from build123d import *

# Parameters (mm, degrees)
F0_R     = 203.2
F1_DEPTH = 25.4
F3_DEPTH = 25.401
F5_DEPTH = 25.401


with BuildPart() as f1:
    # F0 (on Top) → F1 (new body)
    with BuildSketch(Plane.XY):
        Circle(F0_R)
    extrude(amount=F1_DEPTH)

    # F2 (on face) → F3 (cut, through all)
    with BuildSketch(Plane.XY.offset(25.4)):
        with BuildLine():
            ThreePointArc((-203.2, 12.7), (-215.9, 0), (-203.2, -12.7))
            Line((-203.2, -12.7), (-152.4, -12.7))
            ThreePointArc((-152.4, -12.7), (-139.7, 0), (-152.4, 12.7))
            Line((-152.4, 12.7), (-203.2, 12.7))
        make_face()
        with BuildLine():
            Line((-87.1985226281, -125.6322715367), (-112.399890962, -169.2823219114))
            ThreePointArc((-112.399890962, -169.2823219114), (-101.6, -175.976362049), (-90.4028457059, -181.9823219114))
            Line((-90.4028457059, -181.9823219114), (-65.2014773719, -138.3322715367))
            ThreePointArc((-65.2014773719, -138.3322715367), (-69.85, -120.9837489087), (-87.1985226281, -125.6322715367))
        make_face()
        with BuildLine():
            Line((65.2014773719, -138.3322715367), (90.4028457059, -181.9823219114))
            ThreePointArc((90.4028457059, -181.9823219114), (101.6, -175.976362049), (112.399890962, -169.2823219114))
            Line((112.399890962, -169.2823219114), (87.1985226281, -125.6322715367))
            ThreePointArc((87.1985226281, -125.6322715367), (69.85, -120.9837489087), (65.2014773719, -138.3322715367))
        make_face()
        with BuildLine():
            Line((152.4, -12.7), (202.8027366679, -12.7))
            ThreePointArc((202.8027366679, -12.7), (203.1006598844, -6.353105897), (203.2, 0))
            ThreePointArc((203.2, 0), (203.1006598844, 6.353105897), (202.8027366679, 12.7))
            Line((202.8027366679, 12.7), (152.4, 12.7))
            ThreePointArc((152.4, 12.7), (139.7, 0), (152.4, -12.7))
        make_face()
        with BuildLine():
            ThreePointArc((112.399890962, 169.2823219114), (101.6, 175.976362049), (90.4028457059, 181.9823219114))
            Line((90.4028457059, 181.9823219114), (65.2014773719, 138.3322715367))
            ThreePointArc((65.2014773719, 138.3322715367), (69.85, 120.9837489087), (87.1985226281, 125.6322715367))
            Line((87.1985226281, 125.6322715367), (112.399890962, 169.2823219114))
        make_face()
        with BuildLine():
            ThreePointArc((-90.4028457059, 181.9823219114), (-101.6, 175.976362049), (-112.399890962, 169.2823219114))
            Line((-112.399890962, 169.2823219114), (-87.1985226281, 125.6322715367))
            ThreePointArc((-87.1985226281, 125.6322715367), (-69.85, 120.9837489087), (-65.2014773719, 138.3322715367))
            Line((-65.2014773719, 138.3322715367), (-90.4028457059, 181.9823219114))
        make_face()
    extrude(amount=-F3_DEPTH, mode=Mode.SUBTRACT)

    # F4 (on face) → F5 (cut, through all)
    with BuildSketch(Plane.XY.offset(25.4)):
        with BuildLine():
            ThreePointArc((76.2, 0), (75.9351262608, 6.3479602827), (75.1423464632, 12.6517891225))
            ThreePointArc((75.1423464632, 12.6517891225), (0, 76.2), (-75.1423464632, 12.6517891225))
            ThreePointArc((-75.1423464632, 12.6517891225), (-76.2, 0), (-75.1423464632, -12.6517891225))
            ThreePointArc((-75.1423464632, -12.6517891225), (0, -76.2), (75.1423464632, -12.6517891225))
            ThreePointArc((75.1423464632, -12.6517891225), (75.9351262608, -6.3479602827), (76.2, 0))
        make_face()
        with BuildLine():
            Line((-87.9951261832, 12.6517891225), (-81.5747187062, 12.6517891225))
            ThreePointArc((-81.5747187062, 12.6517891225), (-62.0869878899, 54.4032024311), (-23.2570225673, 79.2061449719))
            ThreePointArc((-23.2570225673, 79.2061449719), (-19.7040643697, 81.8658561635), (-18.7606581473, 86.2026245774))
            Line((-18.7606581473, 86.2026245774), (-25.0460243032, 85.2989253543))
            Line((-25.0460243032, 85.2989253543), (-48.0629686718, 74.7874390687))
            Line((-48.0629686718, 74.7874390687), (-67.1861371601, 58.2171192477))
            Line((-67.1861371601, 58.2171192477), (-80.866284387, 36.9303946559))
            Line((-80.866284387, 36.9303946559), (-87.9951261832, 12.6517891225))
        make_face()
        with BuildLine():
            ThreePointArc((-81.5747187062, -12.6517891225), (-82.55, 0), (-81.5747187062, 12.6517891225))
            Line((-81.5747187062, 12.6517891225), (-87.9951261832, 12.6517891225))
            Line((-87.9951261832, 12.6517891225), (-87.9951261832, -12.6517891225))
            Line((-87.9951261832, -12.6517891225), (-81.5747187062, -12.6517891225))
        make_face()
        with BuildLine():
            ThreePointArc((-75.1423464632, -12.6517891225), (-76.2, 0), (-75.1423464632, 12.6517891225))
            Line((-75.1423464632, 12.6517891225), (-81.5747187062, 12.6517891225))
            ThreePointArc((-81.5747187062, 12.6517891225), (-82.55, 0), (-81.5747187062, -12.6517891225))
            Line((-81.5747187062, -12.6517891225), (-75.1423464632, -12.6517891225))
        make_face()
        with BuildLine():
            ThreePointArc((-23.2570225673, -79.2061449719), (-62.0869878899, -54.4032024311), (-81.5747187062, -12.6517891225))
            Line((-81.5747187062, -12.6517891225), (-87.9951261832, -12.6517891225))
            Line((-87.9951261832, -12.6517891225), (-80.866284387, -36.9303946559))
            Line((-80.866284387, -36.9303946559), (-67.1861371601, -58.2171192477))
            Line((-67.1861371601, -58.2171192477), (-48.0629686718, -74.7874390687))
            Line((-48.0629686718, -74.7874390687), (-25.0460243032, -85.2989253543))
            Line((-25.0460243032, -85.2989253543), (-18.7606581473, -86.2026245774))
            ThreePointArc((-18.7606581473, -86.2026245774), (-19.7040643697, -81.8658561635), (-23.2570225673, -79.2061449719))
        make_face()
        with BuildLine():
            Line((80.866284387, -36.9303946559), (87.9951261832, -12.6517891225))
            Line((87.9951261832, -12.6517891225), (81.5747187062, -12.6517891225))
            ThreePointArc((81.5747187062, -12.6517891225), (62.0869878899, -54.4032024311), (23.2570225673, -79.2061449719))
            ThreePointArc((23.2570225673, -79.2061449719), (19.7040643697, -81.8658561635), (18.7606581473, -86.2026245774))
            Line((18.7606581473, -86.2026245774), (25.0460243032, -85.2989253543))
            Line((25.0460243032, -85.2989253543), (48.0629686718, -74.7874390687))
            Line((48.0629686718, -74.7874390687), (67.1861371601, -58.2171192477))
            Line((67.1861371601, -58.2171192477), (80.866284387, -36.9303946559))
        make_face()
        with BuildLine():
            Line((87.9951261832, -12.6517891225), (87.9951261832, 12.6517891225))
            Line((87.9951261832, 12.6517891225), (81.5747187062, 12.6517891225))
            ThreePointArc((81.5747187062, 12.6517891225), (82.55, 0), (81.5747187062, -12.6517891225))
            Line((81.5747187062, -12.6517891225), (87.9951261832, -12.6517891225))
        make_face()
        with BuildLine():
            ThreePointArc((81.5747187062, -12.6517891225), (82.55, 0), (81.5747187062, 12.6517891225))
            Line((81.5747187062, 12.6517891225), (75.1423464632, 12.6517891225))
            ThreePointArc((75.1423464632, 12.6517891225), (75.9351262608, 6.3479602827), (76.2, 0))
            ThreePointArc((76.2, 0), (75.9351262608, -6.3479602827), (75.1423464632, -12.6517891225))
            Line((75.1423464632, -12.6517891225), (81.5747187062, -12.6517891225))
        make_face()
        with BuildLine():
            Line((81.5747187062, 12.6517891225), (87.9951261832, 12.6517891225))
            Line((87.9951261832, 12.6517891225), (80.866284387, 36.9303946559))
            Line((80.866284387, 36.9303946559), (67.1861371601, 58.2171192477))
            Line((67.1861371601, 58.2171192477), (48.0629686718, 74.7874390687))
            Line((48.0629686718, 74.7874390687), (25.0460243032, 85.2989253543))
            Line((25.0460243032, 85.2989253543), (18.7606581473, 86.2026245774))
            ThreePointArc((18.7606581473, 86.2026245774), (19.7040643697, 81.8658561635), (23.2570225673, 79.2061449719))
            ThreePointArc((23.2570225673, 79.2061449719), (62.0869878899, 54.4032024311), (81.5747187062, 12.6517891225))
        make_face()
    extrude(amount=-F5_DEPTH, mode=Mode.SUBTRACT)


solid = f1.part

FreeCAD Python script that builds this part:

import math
import FreeCAD as App
import Part
import Sketcher
Q = App.Units.Quantity

doc = App.newDocument("Part")
body = doc.addObject("PartDesign::Body", "Body")

# Sketch on XY plane
sketch1 = body.newObject("Sketcher::SketchObject", "Sketch")
sketch1.AttachmentSupport = (doc.getObject("XY_Plane"), [""])
sketch1.MapMode = "FlatFace"
sketch1.addGeometry(Part.Circle(App.Vector(0, 0, 0), App.Vector(0, 0, 1), 203), False)
sketch1.addConstraint([
    Sketcher.Constraint("Coincident", 0, 3, -1, 1),
    Sketcher.Constraint("Diameter", 0, Q("16 in")),
])
pad1 = body.newObject("PartDesign::Pad", "Pad")
pad1.Profile = sketch1
pad1.Length = Q("1 in")

# Sketch on XY plane
sketch2 = body.newObject("Sketcher::SketchObject", "Sketch001")
sketch2.AttachmentSupport = (doc.getObject("XY_Plane"), [""])
sketch2.MapMode = "FlatFace"
sketch2.AttachmentOffset = App.Placement(App.Vector(0, 0, 1 * 25.4), App.Rotation())
sketch2.addGeometry([
    Part.ArcOfCircle(Part.Circle(App.Vector(-203, 0, 0), App.Vector(0, 0, 1), 13), math.radians(90), math.radians(270)),  # 0
    Part.LineSegment(App.Vector(-203, -13, 0), App.Vector(-152, -13, 0)),  # 1
    Part.ArcOfCircle(Part.Circle(App.Vector(-152, 0, 0), App.Vector(0, 0, 1), 13), math.radians(-90), math.radians(90)),  # 2
    Part.LineSegment(App.Vector(-152, 13, 0), App.Vector(-203, 13, 0)),  # 3
    Part.LineSegment(App.Vector(-87, -126, 0), App.Vector(-112, -169, 0)),  # 4
    Part.ArcOfCircle(Part.Circle(App.Vector(0, 0, 0), App.Vector(0, 0, 1), 203), math.radians(-123.58), math.radians(-116.42)),  # 5
    Part.LineSegment(App.Vector(-90, -182, 0), App.Vector(-65, -138, 0)),  # 6
    Part.ArcOfCircle(Part.Circle(App.Vector(-76, -132, 0), App.Vector(0, 0, 1), 13), math.radians(-30), math.radians(150)),  # 7
    Part.LineSegment(App.Vector(65, -138, 0), App.Vector(90, -182, 0)),  # 8
    Part.ArcOfCircle(Part.Circle(App.Vector(0, 0, 0), App.Vector(0, 0, 1), 203), math.radians(-63.58), math.radians(-56.42)),  # 9
    Part.LineSegment(App.Vector(112, -169, 0), App.Vector(87, -126, 0)),  # 10
    Part.ArcOfCircle(Part.Circle(App.Vector(76, -132, 0), App.Vector(0, 0, 1), 13), math.radians(30), math.radians(210)),  # 11
    Part.LineSegment(App.Vector(152, -13, 0), App.Vector(203, -13, 0)),  # 12
    Part.ArcOfCircle(Part.Circle(App.Vector(0, 0, 0), App.Vector(0, 0, 1), 203), math.radians(-3.58), math.radians(0)),  # 13
    Part.ArcOfCircle(Part.Circle(App.Vector(0, 0, 0), App.Vector(0, 0, 1), 203), math.radians(0), math.radians(3.58)),  # 14
    Part.LineSegment(App.Vector(203, 13, 0), App.Vector(152, 13, 0)),  # 15
    Part.ArcOfCircle(Part.Circle(App.Vector(152, 0, 0), App.Vector(0, 0, 1), 13), math.radians(90), math.radians(270)),  # 16
    Part.ArcOfCircle(Part.Circle(App.Vector(0, 0, 0), App.Vector(0, 0, 1), 203), math.radians(56.42), math.radians(63.58)),  # 17
    Part.LineSegment(App.Vector(90, 182, 0), App.Vector(65, 138, 0)),  # 18
    Part.ArcOfCircle(Part.Circle(App.Vector(76, 132, 0), App.Vector(0, 0, 1), 13), math.radians(150), math.radians(330)),  # 19
    Part.LineSegment(App.Vector(87, 126, 0), App.Vector(112, 169, 0)),  # 20
    Part.ArcOfCircle(Part.Circle(App.Vector(0, 0, 0), App.Vector(0, 0, 1), 203), math.radians(116.42), math.radians(123.58)),  # 21
    Part.LineSegment(App.Vector(-112, 169, 0), App.Vector(-87, 126, 0)),  # 22
    Part.ArcOfCircle(Part.Circle(App.Vector(-76, 132, 0), App.Vector(0, 0, 1), 13), math.radians(-150), math.radians(30)),  # 23
    Part.LineSegment(App.Vector(-65, 138, 0), App.Vector(-90, 182, 0)),  # 24
], False)
sketch2.addConstraint([
    Sketcher.Constraint("Tangent", 0, 2, 1, 1),
    Sketcher.Constraint("Tangent", 1, 2, 2, 1),
    Sketcher.Constraint("Tangent", 2, 2, 3, 1),
    Sketcher.Constraint("Tangent", 3, 2, 0, 1),
    Sketcher.Constraint("Coincident", 4, 2, 5, 1),
    Sketcher.Constraint("Coincident", 5, 2, 6, 1),
    Sketcher.Constraint("Tangent", 6, 2, 7, 1),
    Sketcher.Constraint("Tangent", 7, 2, 4, 1),
    Sketcher.Constraint("Coincident", 8, 2, 9, 1),
    Sketcher.Constraint("Coincident", 9, 2, 10, 1),
    Sketcher.Constraint("Tangent", 10, 2, 11, 1),
    Sketcher.Constraint("Tangent", 11, 2, 8, 1),
    Sketcher.Constraint("Coincident", 12, 2, 13, 1),
    Sketcher.Constraint("Tangent", 13, 2, 14, 1),
    Sketcher.Constraint("Coincident", 14, 2, 15, 1),
    Sketcher.Constraint("Tangent", 15, 2, 16, 1),
    Sketcher.Constraint("Tangent", 16, 2, 12, 1),
    Sketcher.Constraint("Coincident", 17, 2, 18, 1),
    Sketcher.Constraint("Tangent", 18, 2, 19, 1),
    Sketcher.Constraint("Tangent", 19, 2, 20, 1),
    Sketcher.Constraint("Coincident", 20, 2, 17, 1),
    Sketcher.Constraint("Coincident", 21, 2, 22, 1),
    Sketcher.Constraint("Tangent", 22, 2, 23, 1),
    Sketcher.Constraint("Tangent", 23, 2, 24, 1),
    Sketcher.Constraint("Coincident", 24, 2, 21, 1),
    Sketcher.Constraint("Horizontal", 1),
    Sketcher.Constraint("Horizontal", 3),
    Sketcher.Constraint("Horizontal", 12),
    Sketcher.Constraint("Horizontal", 15),
    Sketcher.Constraint("Coincident", 5, 3, -1, 1),
    Sketcher.Constraint("Coincident", 9, 3, -1, 1),
    Sketcher.Constraint("Coincident", 13, 3, -1, 1),
    Sketcher.Constraint("Coincident", 17, 3, -1, 1),
    Sketcher.Constraint("Coincident", 21, 3, -1, 1),
    Sketcher.Constraint("Equal", 2, 7),
    Sketcher.Constraint("Equal", 5, 9),
    Sketcher.Constraint("Equal", 7, 11),
    Sketcher.Constraint("Equal", 9, 13),
    Sketcher.Constraint("Equal", 13, 14),
    Sketcher.Constraint("Equal", 11, 16),
    Sketcher.Constraint("Equal", 14, 17),
    Sketcher.Constraint("Equal", 16, 19),
    Sketcher.Constraint("Equal", 17, 21),
    Sketcher.Constraint("Equal", 19, 23),
    Sketcher.Constraint("Symmetric", 2, 3, 16, 3, -1, 1),
    Sketcher.Constraint("Symmetric", 7, 3, 19, 3, -1, 1),
    Sketcher.Constraint("Symmetric", 11, 3, 23, 3, -1, 1),
    Sketcher.Constraint("Symmetric", 7, 3, 11, 3, -2),
    Sketcher.Constraint("PointOnObject", 0, 3, -1),
    Sketcher.Constraint("PointOnObject", 13, 2, -1),
    Sketcher.Constraint("Parallel", 4, 6),
    Sketcher.Constraint("Parallel", 8, 10),
    Sketcher.Constraint("Parallel", 6, 18),
    Sketcher.Constraint("Parallel", 18, 20),
    Sketcher.Constraint("Parallel", 10, 22),
    Sketcher.Constraint("Parallel", 22, 24),
    Sketcher.Constraint("Horizontal", 5, 2, 8, 2),
    Sketcher.Constraint("Equal", 4, 6),
    Sketcher.Constraint("Radius", 5, Q("8 in")),
    Sketcher.Constraint("Radius", 0, Q("0.5 in")),
    Sketcher.Constraint("DistanceX", 1, 1, 1, 2, Q("2 in")),
    Sketcher.Constraint("DistanceX", 0, 3, -1, 1, Q("8 in")),
    Sketcher.Constraint("DistanceX", 7, 3, -1, 1, Q("3 in")),
    Sketcher.Constraint("Angle", 4, Q("-120 deg")),
])
pocket1 = body.newObject("PartDesign::Pocket", "Pocket")
pocket1.Profile = sketch2
pocket1.Type = "ThroughAll"

# Sketch on XY plane
sketch3 = body.newObject("Sketcher::SketchObject", "Sketch002")
sketch3.AttachmentSupport = (doc.getObject("XY_Plane"), [""])
sketch3.MapMode = "FlatFace"
sketch3.AttachmentOffset = App.Placement(App.Vector(0, 0, 1 * 25.4), App.Rotation())
sketch3.addGeometry([
    Part.ArcOfCircle(Part.Circle(App.Vector(0, 0, 0), App.Vector(0, 0, 1), 76), math.radians(10), math.radians(170)),  # 0
    Part.LineSegment(App.Vector(-75, 13, 0), App.Vector(-82, 13, 0)),  # 1
    Part.ArcOfCircle(Part.Circle(App.Vector(0, 0, 0), App.Vector(0, 0, 1), 83), math.radians(106), math.radians(171)),  # 2
    Part.ArcOfCircle(Part.Circle(App.Vector(-25, 85, 0), App.Vector(0, 0, 1), 6), math.radians(-74), math.radians(8)),  # 3
    Part.LineSegment(App.Vector(-19, 86, 0), App.Vector(-25, 85, 0)),  # 4
    Part.LineSegment(App.Vector(-25, 85, 0), App.Vector(-48, 75, 0)),  # 5
    Part.LineSegment(App.Vector(-48, 75, 0), App.Vector(-67, 58, 0)),  # 6
    Part.LineSegment(App.Vector(-67, 58, 0), App.Vector(-81, 37, 0)),  # 7
    Part.LineSegment(App.Vector(-81, 37, 0), App.Vector(-88, 13, 0)),  # 8
    Part.LineSegment(App.Vector(-88, 13, 0), App.Vector(-88, -13, 0)),  # 9
    Part.LineSegment(App.Vector(-88, -13, 0), App.Vector(-81, -37, 0)),  # 10
    Part.LineSegment(App.Vector(-81, -37, 0), App.Vector(-67, -58, 0)),  # 11
    Part.LineSegment(App.Vector(-67, -58, 0), App.Vector(-48, -75, 0)),  # 12
    Part.LineSegment(App.Vector(-48, -75, 0), App.Vector(-25, -85, 0)),  # 13
    Part.LineSegment(App.Vector(-25, -85, 0), App.Vector(-19, -86, 0)),  # 14
    Part.ArcOfCircle(Part.Circle(App.Vector(-25, -85, 0), App.Vector(0, 0, 1), 6), math.radians(-8), math.radians(74)),  # 15
    Part.ArcOfCircle(Part.Circle(App.Vector(0, 0, 0), App.Vector(0, 0, 1), 83), math.radians(-171), math.radians(-106)),  # 16
    Part.LineSegment(App.Vector(-82, -13, 0), App.Vector(-75, -13, 0)),  # 17
    Part.ArcOfCircle(Part.Circle(App.Vector(0, 0, 0), App.Vector(0, 0, 1), 76), math.radians(-170), math.radians(-10)),  # 18
    Part.LineSegment(App.Vector(75, -13, 0), App.Vector(82, -13, 0)),  # 19
    Part.ArcOfCircle(Part.Circle(App.Vector(0, 0, 0), App.Vector(0, 0, 1), 83), math.radians(-74), math.radians(-9)),  # 20
    Part.ArcOfCircle(Part.Circle(App.Vector(25, -85, 0), App.Vector(0, 0, 1), 6), math.radians(106), math.radians(188)),  # 21
    Part.LineSegment(App.Vector(19, -86, 0), App.Vector(25, -85, 0)),  # 22
    Part.LineSegment(App.Vector(25, -85, 0), App.Vector(48, -75, 0)),  # 23
    Part.LineSegment(App.Vector(48, -75, 0), App.Vector(67, -58, 0)),  # 24
    Part.LineSegment(App.Vector(67, -58, 0), App.Vector(81, -37, 0)),  # 25
    Part.LineSegment(App.Vector(81, -37, 0), App.Vector(88, -13, 0)),  # 26
    Part.LineSegment(App.Vector(88, -13, 0), App.Vector(88, 13, 0)),  # 27
    Part.LineSegment(App.Vector(88, 13, 0), App.Vector(81, 37, 0)),  # 28
    Part.LineSegment(App.Vector(81, 37, 0), App.Vector(67, 58, 0)),  # 29
    Part.LineSegment(App.Vector(67, 58, 0), App.Vector(48, 75, 0)),  # 30
    Part.LineSegment(App.Vector(48, 75, 0), App.Vector(25, 85, 0)),  # 31
    Part.LineSegment(App.Vector(25, 85, 0), App.Vector(19, 86, 0)),  # 32
    Part.ArcOfCircle(Part.Circle(App.Vector(25, 85, 0), App.Vector(0, 0, 1), 6), math.radians(172), math.radians(254)),  # 33
    Part.ArcOfCircle(Part.Circle(App.Vector(0, 0, 0), App.Vector(0, 0, 1), 83), math.radians(9), math.radians(74)),  # 34
    Part.LineSegment(App.Vector(82, 13, 0), App.Vector(75, 13, 0)),  # 35
], False)
sketch3.addConstraint([
    Sketcher.Constraint("Coincident", 0, 2, 1, 1),
    Sketcher.Constraint("Coincident", 1, 2, 2, 2),
    Sketcher.Constraint("Tangent", 2, 1, 3, 1),
    Sketcher.Constraint("Coincident", 3, 2, 4, 1),
    Sketcher.Constraint("Coincident", 4, 2, 5, 1),
    Sketcher.Constraint("Coincident", 5, 2, 6, 1),
    Sketcher.Constraint("Coincident", 6, 2, 7, 1),
    Sketcher.Constraint("Coincident", 7, 2, 8, 1),
    Sketcher.Constraint("Coincident", 8, 2, 9, 1),
    Sketcher.Constraint("Coincident", 9, 2, 10, 1),
    Sketcher.Constraint("Coincident", 10, 2, 11, 1),
    Sketcher.Constraint("Coincident", 11, 2, 12, 1),
    Sketcher.Constraint("Coincident", 12, 2, 13, 1),
    Sketcher.Constraint("Coincident", 13, 2, 14, 1),
    Sketcher.Constraint("Coincident", 14, 2, 15, 1),
    Sketcher.Constraint("Tangent", 15, 2, 16, 2),
    Sketcher.Constraint("Coincident", 16, 1, 17, 1),
    Sketcher.Constraint("Coincident", 17, 2, 18, 1),
    Sketcher.Constraint("Coincident", 18, 2, 19, 1),
    Sketcher.Constraint("Coincident", 19, 2, 20, 2),
    Sketcher.Constraint("Tangent", 20, 1, 21, 1),
    Sketcher.Constraint("Coincident", 21, 2, 22, 1),
    Sketcher.Constraint("Coincident", 22, 2, 23, 1),
    Sketcher.Constraint("Coincident", 23, 2, 24, 1),
    Sketcher.Constraint("Coincident", 24, 2, 25, 1),
    Sketcher.Constraint("Coincident", 25, 2, 26, 1),
    Sketcher.Constraint("Coincident", 26, 2, 27, 1),
    Sketcher.Constraint("Coincident", 27, 2, 28, 1),
    Sketcher.Constraint("Coincident", 28, 2, 29, 1),
    Sketcher.Constraint("Coincident", 29, 2, 30, 1),
    Sketcher.Constraint("Coincident", 30, 2, 31, 1),
    Sketcher.Constraint("Coincident", 31, 2, 32, 1),
    Sketcher.Constraint("Coincident", 32, 2, 33, 1),
    Sketcher.Constraint("Tangent", 33, 2, 34, 2),
    Sketcher.Constraint("Coincident", 34, 1, 35, 1),
    Sketcher.Constraint("Coincident", 35, 2, 0, 1),
    Sketcher.Constraint("Horizontal", 1),
    Sketcher.Constraint("Vertical", 9),
    Sketcher.Constraint("Horizontal", 17),
    Sketcher.Constraint("Horizontal", 19),
    Sketcher.Constraint("Vertical", 27),
    Sketcher.Constraint("Horizontal", 35),
    Sketcher.Constraint("Coincident", 0, 3, -1, 1),
    Sketcher.Constraint("Coincident", 2, 3, -1, 1),
    Sketcher.Constraint("Coincident", 16, 3, -1, 1),
    Sketcher.Constraint("Coincident", 18, 3, -1, 1),
    Sketcher.Constraint("Coincident", 20, 3, -1, 1),
    Sketcher.Constraint("Coincident", 34, 3, -1, 1),
    Sketcher.Constraint("Coincident", 4, 2, 3, 3),
    Sketcher.Constraint("Coincident", 13, 2, 15, 3),
    Sketcher.Constraint("Coincident", 22, 2, 21, 3),
    Sketcher.Constraint("Coincident", 31, 2, 33, 3),
    Sketcher.Constraint("Equal", 3, 15),
    Sketcher.Constraint("Equal", 2, 16),
    Sketcher.Constraint("Equal", 0, 18),
    Sketcher.Constraint("Equal", 16, 20),
    Sketcher.Constraint("Equal", 15, 21),
    Sketcher.Constraint("Equal", 21, 33),
    Sketcher.Constraint("Equal", 20, 34),
    Sketcher.Constraint("Symmetric", 3, 2, 21, 2, -1, 1),
    Sketcher.Constraint("Symmetric", 5, 2, 23, 2, -1, 1),
    Sketcher.Constraint("Symmetric", 6, 2, 24, 2, -1, 1),
    Sketcher.Constraint("Symmetric", 7, 2, 25, 2, -1, 1),
    Sketcher.Constraint("Symmetric", 8, 2, 26, 2, -1, 1),
    Sketcher.Constraint("Symmetric", 10, 2, 28, 2, -1, 1),
    Sketcher.Constraint("Symmetric", 11, 2, 29, 2, -1, 1),
    Sketcher.Constraint("Symmetric", 12, 2, 30, 2, -1, 1),
    Sketcher.Constraint("Symmetric", 14, 2, 32, 2, -1, 1),
    Sketcher.Constraint("Symmetric", 14, 2, 21, 2, -2),
    Sketcher.Constraint("Symmetric", 12, 2, 23, 2, -2),
    Sketcher.Constraint("Symmetric", 11, 2, 24, 2, -2),
    Sketcher.Constraint("Symmetric", 10, 2, 25, 2, -2),
    Sketcher.Constraint("Parallel", 10, 28),
    Sketcher.Constraint("Horizontal", 1, 2, 8, 2),
    Sketcher.Constraint("Horizontal", 9, 2, 16, 1),
    Sketcher.Constraint("Horizontal", 17, 2, 18, 2),
    Sketcher.Constraint("Horizontal", 19, 2, 26, 2),
    Sketcher.Constraint("Horizontal", 27, 2, 34, 1),
    Sketcher.Constraint("Equal", 5, 6),
    Sketcher.Constraint("Equal", 6, 7),
    Sketcher.Constraint("Equal", 7, 8),
    Sketcher.Constraint("Radius", 0, Q("3 in")),
    Sketcher.Constraint("Radius", 2, Q("3.25 in")),
    Sketcher.Constraint("Radius", 3, Q("0.25 in")),
    Sketcher.Constraint("DistanceY", 9, 2, 9, 1, Q("25.303578 mm")),
    Sketcher.Constraint("DistanceY", 3, 3, 3, 2, Q("0.903699 mm")),
    Sketcher.Constraint("DistanceX", 15, 3, 15, 2, Q("1.789002 mm")),
    Sketcher.Constraint("Distance", 5, Q("25.303578 mm")),
    Sketcher.Constraint("DistanceX", 5, 2, -1, 1, Q("48.062969 mm")),
    Sketcher.Constraint("DistanceY", -1, 1, 6, 2, Q("58.217119 mm")),
    Sketcher.Constraint("DistanceX", 7, 2, 2, 1, Q("57.609262 mm")),
])
pocket2 = body.newObject("PartDesign::Pocket", "Pocket001")
pocket2.Profile = sketch3
pocket2.Type = "ThroughAll"

doc.recompute()
